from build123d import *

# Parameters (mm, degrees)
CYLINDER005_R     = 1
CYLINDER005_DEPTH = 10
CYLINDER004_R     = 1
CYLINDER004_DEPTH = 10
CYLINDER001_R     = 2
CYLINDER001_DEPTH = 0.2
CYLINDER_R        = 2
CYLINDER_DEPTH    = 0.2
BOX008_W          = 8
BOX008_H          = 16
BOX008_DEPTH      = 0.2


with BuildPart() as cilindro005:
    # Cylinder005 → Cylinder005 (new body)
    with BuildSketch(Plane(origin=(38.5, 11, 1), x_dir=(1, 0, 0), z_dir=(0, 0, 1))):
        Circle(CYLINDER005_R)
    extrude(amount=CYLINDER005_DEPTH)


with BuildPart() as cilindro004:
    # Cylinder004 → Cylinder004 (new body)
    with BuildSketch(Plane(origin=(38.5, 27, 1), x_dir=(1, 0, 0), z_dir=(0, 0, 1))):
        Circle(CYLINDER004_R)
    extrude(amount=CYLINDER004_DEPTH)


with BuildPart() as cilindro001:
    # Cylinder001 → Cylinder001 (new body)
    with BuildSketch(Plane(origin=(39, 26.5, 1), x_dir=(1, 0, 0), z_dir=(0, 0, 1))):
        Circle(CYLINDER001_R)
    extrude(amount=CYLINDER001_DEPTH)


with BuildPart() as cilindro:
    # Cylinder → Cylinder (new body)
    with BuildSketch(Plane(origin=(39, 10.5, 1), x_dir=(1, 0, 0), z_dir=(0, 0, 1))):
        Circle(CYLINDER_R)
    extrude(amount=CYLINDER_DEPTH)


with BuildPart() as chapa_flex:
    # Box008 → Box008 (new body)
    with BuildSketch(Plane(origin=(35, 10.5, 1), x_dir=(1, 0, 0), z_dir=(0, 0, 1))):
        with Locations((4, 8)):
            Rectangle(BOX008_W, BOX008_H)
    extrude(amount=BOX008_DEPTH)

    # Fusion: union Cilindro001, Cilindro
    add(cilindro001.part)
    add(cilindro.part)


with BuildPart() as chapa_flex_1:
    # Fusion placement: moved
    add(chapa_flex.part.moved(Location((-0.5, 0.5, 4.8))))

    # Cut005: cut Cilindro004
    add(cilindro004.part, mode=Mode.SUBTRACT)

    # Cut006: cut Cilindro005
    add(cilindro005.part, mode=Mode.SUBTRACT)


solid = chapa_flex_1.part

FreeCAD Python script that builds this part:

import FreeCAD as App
import Part
import Sketcher

doc = App.newDocument("Part")
params = doc.addObject("Spreadsheet::Sheet", "Params")
for row, (alias, value) in enumerate([
    ("sketch1_diameter", "2 mm"),
    ("pad1_length", "10 mm"),
    ("sketch2_diameter", "2 mm"),
    ("pad2_length", "10 mm"),
    ("sketch3_diameter", "4 mm"),
    ("pad3_length", "0.2 mm"),
    ("sketch4_diameter", "4 mm"),
    ("pad4_length", "0.2 mm"),
    ("sketch5_width", "8 mm"),
    ("sketch5_height", "16 mm"),
    ("pad5_length", "0.2 mm"),
], start=1):
    params.set(f"A{row}", alias)
    params.set(f"B{row}", "=" + value)
    params.setAlias(f"B{row}", alias)

body = doc.addObject("PartDesign::Body", "Body")

# Sketch on XY plane
sketch1 = body.newObject("Sketcher::SketchObject", "Sketch")
sketch1.AttachmentSupport = (doc.getObject("XY_Plane"), [""])
sketch1.MapMode = "FlatFace"
sketch1.AttachmentOffset = App.Placement(App.Vector(0, 0, 1), App.Rotation())
sketch1.addGeometry(Part.Circle(App.Vector(38.5, 11, 0), App.Vector(0, 0, 1), 1), False)
sketch1.addConstraint([
    Sketcher.Constraint("Diameter", 0, 2.0),
    Sketcher.Constraint("DistanceY", -1, 1, 0, 3, 11.0),
    Sketcher.Constraint("DistanceX", -1, 1, 0, 3, 38.5),
])
sketch1.setExpression("Constraints[0]", "Params.sketch1_diameter")
pad1 = body.newObject("PartDesign::Pad", "Pad")
pad1.Profile = sketch1
pad1.setExpression("Length", "Params.pad1_length")
body2 = doc.addObject("PartDesign::Body", "Body001")

# Sketch on XY plane
sketch2 = body2.newObject("Sketcher::SketchObject", "Sketch001")
sketch2.AttachmentSupport = (doc.getObject("XY_Plane001"), [""])
sketch2.MapMode = "FlatFace"
sketch2.AttachmentOffset = App.Placement(App.Vector(0, 0, 1), App.Rotation())
sketch2.addGeometry(Part.Circle(App.Vector(38.5, 27, 0), App.Vector(0, 0, 1), 1), False)
sketch2.addConstraint([
    Sketcher.Constraint("Diameter", 0, 2.0),
    Sketcher.Constraint("DistanceY", -1, 1, 0, 3, 27.0),
    Sketcher.Constraint("DistanceX", -1, 1, 0, 3, 38.5),
])
sketch2.setExpression("Constraints[0]", "Params.sketch2_diameter")
pad2 = body2.newObject("PartDesign::Pad", "Pad001")
pad2.Profile = sketch2
pad2.setExpression("Length", "Params.pad2_length")
body3 = doc.addObject("PartDesign::Body", "Body002")

# Sketch on XY plane
sketch3 = body3.newObject("Sketcher::SketchObject", "Sketch002")
sketch3.AttachmentSupport = (doc.getObject("XY_Plane002"), [""])
sketch3.MapMode = "FlatFace"
sketch3.AttachmentOffset = App.Placement(App.Vector(0, 0, 1), App.Rotation())
sketch3.addGeometry(Part.Circle(App.Vector(39, 26.5, 0), App.Vector(0, 0, 1), 2), False)
sketch3.addConstraint([
    Sketcher.Constraint("Diameter", 0, 4.0),
    Sketcher.Constraint("DistanceX", -1, 1, 0, 3, 39.0),
    Sketcher.Constraint("DistanceY", -1, 1, 0, 3, 26.5),
])
sketch3.setExpression("Constraints[0]", "Params.sketch3_diameter")
pad3 = body3.newObject("PartDesign::Pad", "Pad002")
pad3.Profile = sketch3
pad3.setExpression("Length", "Params.pad3_length")
body4 = doc.addObject("PartDesign::Body", "Body003")

# Sketch on XY plane
sketch4 = body4.newObject("Sketcher::SketchObject", "Sketch003")
sketch4.AttachmentSupport = (doc.getObject("XY_Plane003"), [""])
sketch4.MapMode = "FlatFace"
sketch4.AttachmentOffset = App.Placement(App.Vector(0, 0, 1), App.Rotation())
sketch4.addGeometry(Part.Circle(App.Vector(39, 10.5, 0), App.Vector(0, 0, 1), 2), False)
sketch4.addConstraint([
    Sketcher.Constraint("Diameter", 0, 4.0),
    Sketcher.Constraint("DistanceX", -1, 1, 0, 3, 39.0),
    Sketcher.Constraint("DistanceY", -1, 1, 0, 3, 10.5),
])
sketch4.setExpression("Constraints[0]", "Params.sketch4_diameter")
pad4 = body4.newObject("PartDesign::Pad", "Pad003")
pad4.Profile = sketch4
pad4.setExpression("Length", "Params.pad4_length")
body5 = doc.addObject("PartDesign::Body", "Body004")

# Sketch on XY plane
sketch5 = body5.newObject("Sketcher::SketchObject", "Sketch004")
sketch5.AttachmentSupport = (doc.getObject("XY_Plane004"), [""])
sketch5.MapMode = "FlatFace"
sketch5.AttachmentOffset = App.Placement(App.Vector(0, 0, 1), App.Rotation())
sketch5.addGeometry([
    Part.LineSegment(App.Vector(35, 26, 0), App.Vector(35, 10, 0)),
    Part.LineSegment(App.Vector(35, 10, 0), App.Vector(43, 10, 0)),
    Part.LineSegment(App.Vector(43, 10, 0), App.Vector(43, 26, 0)),
    Part.LineSegment(App.Vector(43, 26, 0), App.Vector(35, 26, 0)),
], False)
sketch5.addConstraint([
    Sketcher.Constraint("Coincident", 0, 2, 1, 1),
    Sketcher.Constraint("Coincident", 1, 2, 2, 1),
    Sketcher.Constraint("Coincident", 2, 2, 3, 1),
    Sketcher.Constraint("Coincident", 3, 2, 0, 1),
    Sketcher.Constraint("Vertical", 0),
    Sketcher.Constraint("Horizontal", 1),
    Sketcher.Constraint("Vertical", 2),
    Sketcher.Constraint("Horizontal", 3),
    Sketcher.Constraint("DistanceX", 1, 1, 1, 2, 8.0),
    Sketcher.Constraint("DistanceY", 0, 2, 0, 1, 16.0),
    Sketcher.Constraint("DistanceX", -1, 1, 0, 2, 35.0),
    Sketcher.Constraint("DistanceY", -1, 1, 0, 2, 10.5),
])
sketch5.setExpression("Constraints[8]", "Params.sketch5_width")
sketch5.setExpression("Constraints[9]", "Params.sketch5_height")
pad5 = body5.newObject("PartDesign::Pad", "Pad004")
pad5.Profile = sketch5
pad5.setExpression("Length", "Params.pad5_length")
doc.recompute()

boolean = body5.newObject("PartDesign::Boolean", "Boolean")
boolean.Type = "Fuse"
boolean.addObjects([body3])
doc.recompute()

boolean2 = body5.newObject("PartDesign::Boolean", "Boolean001")
boolean2.Type = "Fuse"
boolean2.addObjects([body4])
body6 = doc.addObject("PartDesign::Body", "Body005")
doc.recompute()

body5.Placement = App.Placement(App.Vector(-0.5, 0.5, 4.8), App.Rotation(App.Vector(0, 0, 1), 0))
boolean3 = body6.newObject("PartDesign::Boolean", "Boolean002")
boolean3.Type = "Fuse"
boolean3.addObjects([body5])
doc.recompute()

boolean4 = body6.newObject("PartDesign::Boolean", "Boolean003")
boolean4.Type = "Cut"
boolean4.addObjects([body2])
doc.recompute()

boolean5 = body6.newObject("PartDesign::Boolean", "Boolean004")
boolean5.Type = "Cut"
boolean5.addObjects([body])

doc.recompute()
